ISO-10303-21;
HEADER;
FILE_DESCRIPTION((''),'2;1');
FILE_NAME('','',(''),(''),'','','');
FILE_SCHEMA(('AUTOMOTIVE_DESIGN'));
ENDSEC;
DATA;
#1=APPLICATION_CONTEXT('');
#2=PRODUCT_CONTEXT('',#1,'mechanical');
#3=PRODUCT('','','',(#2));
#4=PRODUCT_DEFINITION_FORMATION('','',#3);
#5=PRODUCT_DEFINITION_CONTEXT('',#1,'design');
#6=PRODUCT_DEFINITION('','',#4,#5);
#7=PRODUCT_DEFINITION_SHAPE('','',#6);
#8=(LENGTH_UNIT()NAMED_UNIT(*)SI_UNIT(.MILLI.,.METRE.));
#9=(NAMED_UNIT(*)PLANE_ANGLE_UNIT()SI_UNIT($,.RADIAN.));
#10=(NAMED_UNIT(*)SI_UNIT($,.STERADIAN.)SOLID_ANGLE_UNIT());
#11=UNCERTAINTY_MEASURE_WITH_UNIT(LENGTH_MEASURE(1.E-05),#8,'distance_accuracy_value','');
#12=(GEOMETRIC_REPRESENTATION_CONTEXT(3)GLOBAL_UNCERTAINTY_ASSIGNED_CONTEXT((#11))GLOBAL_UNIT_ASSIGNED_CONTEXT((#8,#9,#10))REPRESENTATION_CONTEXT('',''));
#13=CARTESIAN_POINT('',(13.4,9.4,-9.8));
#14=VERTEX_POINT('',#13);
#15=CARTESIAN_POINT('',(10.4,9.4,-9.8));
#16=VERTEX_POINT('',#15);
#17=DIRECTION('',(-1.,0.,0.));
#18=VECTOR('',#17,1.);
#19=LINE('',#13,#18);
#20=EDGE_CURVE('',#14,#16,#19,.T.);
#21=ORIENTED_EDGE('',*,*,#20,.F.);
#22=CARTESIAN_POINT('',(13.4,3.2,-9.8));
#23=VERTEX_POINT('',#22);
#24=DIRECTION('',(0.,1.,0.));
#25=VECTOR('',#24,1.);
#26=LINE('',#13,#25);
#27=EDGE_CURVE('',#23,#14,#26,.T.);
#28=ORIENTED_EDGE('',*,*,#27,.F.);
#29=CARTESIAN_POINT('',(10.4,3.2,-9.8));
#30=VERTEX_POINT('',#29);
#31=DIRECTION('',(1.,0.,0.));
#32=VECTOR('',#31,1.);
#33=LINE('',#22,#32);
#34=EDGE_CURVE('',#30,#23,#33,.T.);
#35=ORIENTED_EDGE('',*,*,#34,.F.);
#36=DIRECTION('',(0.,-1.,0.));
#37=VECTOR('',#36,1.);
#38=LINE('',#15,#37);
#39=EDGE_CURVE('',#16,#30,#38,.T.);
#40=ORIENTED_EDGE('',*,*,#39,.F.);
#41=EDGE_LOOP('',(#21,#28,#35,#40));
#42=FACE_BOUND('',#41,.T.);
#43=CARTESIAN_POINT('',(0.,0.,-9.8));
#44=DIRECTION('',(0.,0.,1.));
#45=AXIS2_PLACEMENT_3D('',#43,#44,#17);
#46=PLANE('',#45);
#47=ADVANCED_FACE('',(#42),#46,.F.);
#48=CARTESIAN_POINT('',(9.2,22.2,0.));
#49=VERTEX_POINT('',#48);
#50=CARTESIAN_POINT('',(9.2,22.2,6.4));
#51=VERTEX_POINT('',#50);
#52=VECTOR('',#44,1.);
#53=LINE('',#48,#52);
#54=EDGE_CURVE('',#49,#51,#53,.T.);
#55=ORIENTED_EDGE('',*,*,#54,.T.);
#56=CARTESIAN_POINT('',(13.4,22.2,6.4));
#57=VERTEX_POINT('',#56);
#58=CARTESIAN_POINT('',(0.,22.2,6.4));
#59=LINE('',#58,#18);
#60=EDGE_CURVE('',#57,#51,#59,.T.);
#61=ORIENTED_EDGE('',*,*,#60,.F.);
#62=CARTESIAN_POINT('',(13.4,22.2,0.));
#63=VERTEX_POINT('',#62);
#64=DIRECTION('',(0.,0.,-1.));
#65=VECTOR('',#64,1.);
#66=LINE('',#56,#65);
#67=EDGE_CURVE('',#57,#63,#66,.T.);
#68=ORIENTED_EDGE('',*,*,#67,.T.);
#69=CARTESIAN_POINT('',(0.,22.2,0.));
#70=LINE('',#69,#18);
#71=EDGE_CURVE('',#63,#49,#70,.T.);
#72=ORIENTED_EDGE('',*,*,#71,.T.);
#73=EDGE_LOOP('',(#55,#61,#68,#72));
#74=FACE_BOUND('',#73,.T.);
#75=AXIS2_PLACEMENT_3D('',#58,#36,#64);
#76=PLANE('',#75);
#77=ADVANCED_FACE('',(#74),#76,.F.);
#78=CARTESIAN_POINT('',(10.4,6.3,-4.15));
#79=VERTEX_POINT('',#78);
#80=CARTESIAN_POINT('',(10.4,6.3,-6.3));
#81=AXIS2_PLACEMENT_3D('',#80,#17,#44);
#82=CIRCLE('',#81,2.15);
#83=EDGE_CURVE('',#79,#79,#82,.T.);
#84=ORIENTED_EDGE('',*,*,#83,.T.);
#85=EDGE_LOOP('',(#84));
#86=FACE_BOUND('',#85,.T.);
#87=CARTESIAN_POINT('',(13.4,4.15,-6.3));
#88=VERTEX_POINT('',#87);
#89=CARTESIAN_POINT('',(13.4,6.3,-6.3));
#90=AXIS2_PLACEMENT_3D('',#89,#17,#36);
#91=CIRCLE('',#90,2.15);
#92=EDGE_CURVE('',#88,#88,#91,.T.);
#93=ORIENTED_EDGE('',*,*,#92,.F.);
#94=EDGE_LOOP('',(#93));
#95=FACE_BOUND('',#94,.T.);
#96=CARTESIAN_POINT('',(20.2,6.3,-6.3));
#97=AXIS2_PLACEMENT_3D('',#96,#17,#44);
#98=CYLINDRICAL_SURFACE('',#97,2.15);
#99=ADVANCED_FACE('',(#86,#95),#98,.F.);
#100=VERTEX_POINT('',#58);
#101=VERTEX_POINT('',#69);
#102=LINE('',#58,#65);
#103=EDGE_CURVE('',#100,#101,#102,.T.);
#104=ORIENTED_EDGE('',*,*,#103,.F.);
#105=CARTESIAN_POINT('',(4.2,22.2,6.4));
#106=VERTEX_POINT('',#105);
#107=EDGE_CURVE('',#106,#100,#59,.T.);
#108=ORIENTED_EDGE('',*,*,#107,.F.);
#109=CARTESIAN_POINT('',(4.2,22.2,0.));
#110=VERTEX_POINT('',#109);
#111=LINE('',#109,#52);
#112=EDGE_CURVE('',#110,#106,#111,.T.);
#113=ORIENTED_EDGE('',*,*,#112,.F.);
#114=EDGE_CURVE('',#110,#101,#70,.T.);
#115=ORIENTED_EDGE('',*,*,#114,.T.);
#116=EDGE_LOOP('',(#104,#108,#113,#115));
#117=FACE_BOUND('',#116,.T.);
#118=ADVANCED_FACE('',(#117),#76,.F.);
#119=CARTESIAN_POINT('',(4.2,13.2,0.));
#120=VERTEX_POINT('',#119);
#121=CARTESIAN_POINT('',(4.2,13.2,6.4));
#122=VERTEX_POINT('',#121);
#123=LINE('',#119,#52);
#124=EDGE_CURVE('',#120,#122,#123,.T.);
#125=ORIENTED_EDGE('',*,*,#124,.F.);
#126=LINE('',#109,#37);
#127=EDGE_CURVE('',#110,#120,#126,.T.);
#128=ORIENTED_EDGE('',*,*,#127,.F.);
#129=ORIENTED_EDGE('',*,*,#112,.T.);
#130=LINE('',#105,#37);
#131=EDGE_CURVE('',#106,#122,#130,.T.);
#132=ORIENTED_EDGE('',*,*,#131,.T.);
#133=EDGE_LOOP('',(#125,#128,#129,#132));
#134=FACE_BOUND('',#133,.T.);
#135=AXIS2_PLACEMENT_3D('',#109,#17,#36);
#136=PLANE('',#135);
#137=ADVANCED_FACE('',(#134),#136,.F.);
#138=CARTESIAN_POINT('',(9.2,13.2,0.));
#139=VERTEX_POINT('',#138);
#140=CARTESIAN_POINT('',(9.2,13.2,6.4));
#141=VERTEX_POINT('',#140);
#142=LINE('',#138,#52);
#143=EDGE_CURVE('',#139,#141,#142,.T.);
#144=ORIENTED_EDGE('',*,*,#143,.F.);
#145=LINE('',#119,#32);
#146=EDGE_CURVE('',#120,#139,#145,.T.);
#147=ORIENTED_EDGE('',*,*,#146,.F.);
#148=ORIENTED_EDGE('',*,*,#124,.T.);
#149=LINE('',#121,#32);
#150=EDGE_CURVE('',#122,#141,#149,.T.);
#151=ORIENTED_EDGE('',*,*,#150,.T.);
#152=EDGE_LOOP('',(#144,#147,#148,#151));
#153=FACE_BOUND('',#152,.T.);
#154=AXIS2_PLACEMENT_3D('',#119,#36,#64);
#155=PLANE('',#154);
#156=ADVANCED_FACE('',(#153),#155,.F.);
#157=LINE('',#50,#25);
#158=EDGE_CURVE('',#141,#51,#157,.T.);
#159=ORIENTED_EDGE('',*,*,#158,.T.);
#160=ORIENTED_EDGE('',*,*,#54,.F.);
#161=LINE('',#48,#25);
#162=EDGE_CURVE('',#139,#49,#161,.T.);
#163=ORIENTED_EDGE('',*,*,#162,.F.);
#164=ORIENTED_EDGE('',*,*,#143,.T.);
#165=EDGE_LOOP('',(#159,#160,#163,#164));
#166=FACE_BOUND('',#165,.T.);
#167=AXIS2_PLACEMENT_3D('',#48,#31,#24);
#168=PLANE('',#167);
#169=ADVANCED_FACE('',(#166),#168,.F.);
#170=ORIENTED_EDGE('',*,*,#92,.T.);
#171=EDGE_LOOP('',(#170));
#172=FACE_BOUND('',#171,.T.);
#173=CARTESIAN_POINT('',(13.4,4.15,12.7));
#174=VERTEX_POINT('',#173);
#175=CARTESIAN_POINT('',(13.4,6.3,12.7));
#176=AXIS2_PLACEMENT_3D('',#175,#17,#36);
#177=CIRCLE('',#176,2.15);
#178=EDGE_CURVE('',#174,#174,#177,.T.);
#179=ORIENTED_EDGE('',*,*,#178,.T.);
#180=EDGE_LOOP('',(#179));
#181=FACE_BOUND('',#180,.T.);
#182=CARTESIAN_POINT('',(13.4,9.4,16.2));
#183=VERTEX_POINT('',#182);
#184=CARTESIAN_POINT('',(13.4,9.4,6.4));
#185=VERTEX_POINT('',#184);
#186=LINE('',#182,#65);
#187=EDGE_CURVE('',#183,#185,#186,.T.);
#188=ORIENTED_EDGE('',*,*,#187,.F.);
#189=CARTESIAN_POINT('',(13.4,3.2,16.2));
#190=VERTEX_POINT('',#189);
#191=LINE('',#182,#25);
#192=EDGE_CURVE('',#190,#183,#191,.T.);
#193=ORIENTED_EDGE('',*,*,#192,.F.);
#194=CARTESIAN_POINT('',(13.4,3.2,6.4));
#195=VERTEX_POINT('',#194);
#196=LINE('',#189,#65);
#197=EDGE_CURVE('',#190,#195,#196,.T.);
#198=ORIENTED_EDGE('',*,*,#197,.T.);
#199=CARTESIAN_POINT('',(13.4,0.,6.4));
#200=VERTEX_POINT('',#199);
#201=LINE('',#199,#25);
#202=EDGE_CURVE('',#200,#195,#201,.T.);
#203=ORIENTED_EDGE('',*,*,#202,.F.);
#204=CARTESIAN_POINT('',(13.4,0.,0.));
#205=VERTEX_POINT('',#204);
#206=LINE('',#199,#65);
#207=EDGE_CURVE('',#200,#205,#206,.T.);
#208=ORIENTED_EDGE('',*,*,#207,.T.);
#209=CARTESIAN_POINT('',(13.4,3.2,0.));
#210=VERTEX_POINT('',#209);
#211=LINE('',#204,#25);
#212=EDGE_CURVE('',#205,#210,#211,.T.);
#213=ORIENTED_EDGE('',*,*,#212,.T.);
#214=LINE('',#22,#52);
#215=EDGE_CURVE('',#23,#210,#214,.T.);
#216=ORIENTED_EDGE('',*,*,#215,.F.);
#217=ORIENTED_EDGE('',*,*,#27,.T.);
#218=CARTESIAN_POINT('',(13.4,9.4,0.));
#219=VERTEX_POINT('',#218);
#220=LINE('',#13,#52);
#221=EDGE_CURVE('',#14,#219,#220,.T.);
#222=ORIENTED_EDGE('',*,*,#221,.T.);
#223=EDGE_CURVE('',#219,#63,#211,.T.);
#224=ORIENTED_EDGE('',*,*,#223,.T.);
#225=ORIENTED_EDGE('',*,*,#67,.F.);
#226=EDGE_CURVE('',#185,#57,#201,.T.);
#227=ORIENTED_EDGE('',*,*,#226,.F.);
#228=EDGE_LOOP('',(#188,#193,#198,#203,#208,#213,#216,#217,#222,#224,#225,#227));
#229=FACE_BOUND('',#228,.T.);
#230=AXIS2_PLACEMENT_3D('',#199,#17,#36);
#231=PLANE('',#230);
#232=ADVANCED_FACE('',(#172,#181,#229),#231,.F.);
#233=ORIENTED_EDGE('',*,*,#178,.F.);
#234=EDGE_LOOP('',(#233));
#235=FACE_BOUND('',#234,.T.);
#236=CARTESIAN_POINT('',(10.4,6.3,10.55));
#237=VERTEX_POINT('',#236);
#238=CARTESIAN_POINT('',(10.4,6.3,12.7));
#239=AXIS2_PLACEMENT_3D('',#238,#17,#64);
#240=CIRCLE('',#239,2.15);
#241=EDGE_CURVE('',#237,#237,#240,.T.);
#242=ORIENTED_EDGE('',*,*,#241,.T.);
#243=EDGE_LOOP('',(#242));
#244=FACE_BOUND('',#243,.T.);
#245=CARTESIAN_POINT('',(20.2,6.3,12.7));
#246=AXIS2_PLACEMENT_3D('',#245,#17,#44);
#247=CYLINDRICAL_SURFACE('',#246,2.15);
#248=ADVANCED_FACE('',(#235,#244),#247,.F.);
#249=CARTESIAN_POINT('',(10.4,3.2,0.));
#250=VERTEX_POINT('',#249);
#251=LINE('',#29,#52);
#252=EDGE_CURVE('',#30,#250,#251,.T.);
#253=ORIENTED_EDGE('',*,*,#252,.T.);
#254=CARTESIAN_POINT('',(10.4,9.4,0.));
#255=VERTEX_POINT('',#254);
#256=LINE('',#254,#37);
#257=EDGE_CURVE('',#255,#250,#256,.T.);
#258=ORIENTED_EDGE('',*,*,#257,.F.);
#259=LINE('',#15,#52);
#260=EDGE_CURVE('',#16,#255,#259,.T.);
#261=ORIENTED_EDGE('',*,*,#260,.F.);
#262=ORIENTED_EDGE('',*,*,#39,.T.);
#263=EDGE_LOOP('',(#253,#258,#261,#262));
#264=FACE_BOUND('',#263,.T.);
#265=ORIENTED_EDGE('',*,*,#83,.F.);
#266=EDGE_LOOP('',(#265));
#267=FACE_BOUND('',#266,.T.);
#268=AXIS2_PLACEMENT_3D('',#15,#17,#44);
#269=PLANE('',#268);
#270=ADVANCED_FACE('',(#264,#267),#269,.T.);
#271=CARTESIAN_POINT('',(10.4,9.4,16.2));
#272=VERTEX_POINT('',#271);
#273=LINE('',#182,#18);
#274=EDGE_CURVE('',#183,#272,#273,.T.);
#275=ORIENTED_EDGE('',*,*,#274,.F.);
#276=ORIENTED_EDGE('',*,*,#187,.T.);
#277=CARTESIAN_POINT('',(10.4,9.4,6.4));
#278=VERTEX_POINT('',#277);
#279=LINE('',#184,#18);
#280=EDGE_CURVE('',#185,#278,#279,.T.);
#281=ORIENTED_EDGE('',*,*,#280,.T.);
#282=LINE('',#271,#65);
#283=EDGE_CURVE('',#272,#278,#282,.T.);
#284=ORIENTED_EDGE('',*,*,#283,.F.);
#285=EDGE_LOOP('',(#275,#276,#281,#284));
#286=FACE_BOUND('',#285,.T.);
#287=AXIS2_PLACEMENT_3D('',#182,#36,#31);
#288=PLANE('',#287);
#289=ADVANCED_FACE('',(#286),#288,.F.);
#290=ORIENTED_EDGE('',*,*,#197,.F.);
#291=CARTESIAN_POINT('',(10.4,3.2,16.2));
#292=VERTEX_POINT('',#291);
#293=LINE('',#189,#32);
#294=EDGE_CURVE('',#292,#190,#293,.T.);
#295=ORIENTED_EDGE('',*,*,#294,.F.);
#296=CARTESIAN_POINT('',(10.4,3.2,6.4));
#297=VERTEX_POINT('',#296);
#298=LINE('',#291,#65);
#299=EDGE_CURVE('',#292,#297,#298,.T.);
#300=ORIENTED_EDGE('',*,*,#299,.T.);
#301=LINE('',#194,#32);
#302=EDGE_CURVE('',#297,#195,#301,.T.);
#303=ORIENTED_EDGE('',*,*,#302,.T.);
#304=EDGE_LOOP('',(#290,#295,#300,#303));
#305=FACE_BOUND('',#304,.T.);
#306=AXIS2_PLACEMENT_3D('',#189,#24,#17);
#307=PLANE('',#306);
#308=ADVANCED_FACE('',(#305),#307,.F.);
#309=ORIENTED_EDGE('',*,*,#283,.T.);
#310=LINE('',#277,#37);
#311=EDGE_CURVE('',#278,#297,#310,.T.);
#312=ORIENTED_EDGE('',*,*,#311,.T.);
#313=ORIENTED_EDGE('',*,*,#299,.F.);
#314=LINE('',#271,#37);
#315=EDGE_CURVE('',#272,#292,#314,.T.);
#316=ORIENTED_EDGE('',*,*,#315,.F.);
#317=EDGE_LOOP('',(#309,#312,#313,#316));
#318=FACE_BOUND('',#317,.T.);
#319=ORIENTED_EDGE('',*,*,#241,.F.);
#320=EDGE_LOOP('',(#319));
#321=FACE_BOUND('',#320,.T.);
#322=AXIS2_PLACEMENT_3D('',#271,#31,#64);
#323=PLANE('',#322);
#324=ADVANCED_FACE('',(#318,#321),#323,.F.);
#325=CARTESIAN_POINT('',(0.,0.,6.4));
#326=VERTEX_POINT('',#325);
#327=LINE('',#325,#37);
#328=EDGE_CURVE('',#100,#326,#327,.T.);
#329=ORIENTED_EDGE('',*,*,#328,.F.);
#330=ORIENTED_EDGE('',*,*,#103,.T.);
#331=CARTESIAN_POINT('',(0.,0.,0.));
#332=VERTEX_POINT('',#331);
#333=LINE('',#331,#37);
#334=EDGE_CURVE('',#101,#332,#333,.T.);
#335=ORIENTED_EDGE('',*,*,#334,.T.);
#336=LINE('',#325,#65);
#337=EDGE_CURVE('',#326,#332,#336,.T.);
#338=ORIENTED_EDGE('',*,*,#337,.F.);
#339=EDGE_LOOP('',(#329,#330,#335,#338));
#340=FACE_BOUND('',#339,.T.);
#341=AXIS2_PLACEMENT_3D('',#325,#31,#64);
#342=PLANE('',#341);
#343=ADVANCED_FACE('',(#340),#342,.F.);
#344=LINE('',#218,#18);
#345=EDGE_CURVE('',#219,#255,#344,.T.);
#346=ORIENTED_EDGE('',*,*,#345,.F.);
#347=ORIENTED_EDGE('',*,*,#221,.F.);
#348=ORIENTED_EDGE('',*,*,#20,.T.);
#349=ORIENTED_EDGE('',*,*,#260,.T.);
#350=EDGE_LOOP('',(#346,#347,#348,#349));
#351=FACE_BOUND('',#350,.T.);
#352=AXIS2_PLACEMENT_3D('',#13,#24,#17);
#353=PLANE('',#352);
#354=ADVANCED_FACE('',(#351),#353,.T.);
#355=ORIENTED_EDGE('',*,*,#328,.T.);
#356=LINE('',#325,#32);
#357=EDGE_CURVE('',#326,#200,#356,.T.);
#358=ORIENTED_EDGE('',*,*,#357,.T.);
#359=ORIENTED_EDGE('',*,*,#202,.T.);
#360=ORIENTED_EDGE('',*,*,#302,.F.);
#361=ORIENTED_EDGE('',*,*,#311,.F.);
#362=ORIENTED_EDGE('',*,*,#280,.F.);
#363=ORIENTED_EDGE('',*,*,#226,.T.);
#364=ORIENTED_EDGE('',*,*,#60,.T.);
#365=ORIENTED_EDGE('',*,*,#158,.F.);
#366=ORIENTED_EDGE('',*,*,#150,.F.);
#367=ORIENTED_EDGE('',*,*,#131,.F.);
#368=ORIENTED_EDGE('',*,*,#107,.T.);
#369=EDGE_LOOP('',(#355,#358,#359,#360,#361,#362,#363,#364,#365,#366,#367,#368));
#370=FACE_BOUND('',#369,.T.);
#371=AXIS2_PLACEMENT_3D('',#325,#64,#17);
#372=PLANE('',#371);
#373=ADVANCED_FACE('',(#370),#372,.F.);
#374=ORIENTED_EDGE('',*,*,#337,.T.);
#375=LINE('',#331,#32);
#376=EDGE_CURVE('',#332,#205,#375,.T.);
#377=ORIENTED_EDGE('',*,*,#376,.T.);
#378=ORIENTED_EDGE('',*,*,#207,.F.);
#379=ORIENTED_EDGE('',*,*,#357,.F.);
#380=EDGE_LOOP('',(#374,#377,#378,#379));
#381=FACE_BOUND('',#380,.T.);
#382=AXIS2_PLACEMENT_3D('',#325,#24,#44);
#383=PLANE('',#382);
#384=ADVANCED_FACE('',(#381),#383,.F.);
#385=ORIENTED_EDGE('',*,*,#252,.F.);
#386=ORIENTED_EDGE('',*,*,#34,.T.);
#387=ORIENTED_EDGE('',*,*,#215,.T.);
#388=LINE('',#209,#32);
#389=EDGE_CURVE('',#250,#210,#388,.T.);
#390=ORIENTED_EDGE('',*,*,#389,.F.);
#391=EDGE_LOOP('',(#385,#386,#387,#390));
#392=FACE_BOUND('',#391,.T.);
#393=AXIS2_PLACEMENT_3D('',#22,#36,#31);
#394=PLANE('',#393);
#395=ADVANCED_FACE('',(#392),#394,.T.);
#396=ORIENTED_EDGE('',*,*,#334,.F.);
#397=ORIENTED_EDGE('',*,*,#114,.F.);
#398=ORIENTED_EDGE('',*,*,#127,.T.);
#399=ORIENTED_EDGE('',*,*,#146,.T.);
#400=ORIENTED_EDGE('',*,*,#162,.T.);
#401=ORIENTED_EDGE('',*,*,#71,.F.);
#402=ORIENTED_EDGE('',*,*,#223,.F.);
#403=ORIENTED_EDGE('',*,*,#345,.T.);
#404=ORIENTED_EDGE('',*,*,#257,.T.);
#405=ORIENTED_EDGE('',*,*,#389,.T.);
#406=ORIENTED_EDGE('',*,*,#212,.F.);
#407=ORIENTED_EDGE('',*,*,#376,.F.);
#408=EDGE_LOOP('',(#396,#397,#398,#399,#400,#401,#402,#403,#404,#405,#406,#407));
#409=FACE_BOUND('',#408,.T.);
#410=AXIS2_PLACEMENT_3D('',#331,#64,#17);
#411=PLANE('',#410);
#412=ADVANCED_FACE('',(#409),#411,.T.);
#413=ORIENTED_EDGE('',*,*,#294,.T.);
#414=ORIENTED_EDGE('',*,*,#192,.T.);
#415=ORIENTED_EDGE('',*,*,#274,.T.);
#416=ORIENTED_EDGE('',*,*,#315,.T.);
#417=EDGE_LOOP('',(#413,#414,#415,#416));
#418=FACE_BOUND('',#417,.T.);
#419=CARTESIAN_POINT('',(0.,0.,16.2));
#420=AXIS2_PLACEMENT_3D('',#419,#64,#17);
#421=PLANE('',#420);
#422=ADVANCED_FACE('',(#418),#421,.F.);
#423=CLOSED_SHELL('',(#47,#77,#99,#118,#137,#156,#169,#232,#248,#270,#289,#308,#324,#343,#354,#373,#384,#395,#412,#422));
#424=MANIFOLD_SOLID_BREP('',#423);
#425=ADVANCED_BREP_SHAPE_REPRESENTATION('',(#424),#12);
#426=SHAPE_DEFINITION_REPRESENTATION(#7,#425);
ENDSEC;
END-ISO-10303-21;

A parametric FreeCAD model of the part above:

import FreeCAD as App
import Part
import Sketcher

doc = App.newDocument("Part")
body = doc.addObject("PartDesign::Body", "Body")

sketch1 = doc.addObject("Sketcher::SketchObject", "Sketch")
body.addObject(sketch1)
sketch1.AttachmentSupport = (doc.XY_Plane, [""])
sketch1.MapMode = "FlatFace"
sketch1.addGeometry(Part.LineSegment(App.Vector(0, 22.2, 0), App.Vector(0, 0, 0)), False)
sketch1.addGeometry(Part.LineSegment(App.Vector(0, 0, 0), App.Vector(13.4, 0, 0)), False)
sketch1.addGeometry(Part.LineSegment(App.Vector(13.4, 0, 0), App.Vector(13.4, 22.2, 0)), False)
sketch1.addGeometry(Part.LineSegment(App.Vector(13.4, 22.2, 0), App.Vector(0, 22.2, 0)), False)
sketch1.addConstraint(Sketcher.Constraint("Coincident", 0, 2, 1, 1))
sketch1.addConstraint(Sketcher.Constraint("Coincident", 1, 2, 2, 1))
sketch1.addConstraint(Sketcher.Constraint("Coincident", 2, 2, 3, 1))
sketch1.addConstraint(Sketcher.Constraint("Coincident", 3, 2, 0, 1))
sketch1.addConstraint(Sketcher.Constraint("Vertical", 0))
sketch1.addConstraint(Sketcher.Constraint("Horizontal", 1))
sketch1.addConstraint(Sketcher.Constraint("Vertical", 2))
sketch1.addConstraint(Sketcher.Constraint("Horizontal", 3))
sketch1.addConstraint(Sketcher.Constraint("Coincident", 0, 2, -1, 1))
sketch1.addConstraint(Sketcher.Constraint("DistanceX", 1, 1, 1, 2, 13.4))
sketch1.addConstraint(Sketcher.Constraint("DistanceY", 0, 2, 0, 1, 22.2))
pad1 = doc.addObject("PartDesign::Pad", "Pad")
body.addObject(pad1)
pad1.Profile = sketch1
pad1.Length = 6.4

sketch2 = doc.addObject("Sketcher::SketchObject", "Sketch001")
body.addObject(sketch2)
sketch2.AttachmentSupport = (doc.XY_Plane, [""])
sketch2.MapMode = "FlatFace"
sketch2.AttachmentOffset = App.Placement(App.Vector(0, 0, 6.4), App.Rotation())
sketch2.addGeometry(Part.LineSegment(App.Vector(4.2, 22.2, 0), App.Vector(4.2, 13.2, 0)), False)
sketch2.addGeometry(Part.LineSegment(App.Vector(4.2, 13.2, 0), App.Vector(9.2, 13.2, 0)), False)
sketch2.addGeometry(Part.LineSegment(App.Vector(9.2, 13.2, 0), App.Vector(9.2, 22.2, 0)), False)
sketch2.addGeometry(Part.LineSegment(App.Vector(9.2, 22.2, 0), App.Vector(4.2, 22.2, 0)), False)
sketch2.addConstraint(Sketcher.Constraint("Coincident", 0, 2, 1, 1))
sketch2.addConstraint(Sketcher.Constraint("Coincident", 1, 2, 2, 1))
sketch2.addConstraint(Sketcher.Constraint("Coincident", 2, 2, 3, 1))
sketch2.addConstraint(Sketcher.Constraint("Coincident", 3, 2, 0, 1))
sketch2.addConstraint(Sketcher.Constraint("Vertical", 0))
sketch2.addConstraint(Sketcher.Constraint("Horizontal", 1))
sketch2.addConstraint(Sketcher.Constraint("Vertical", 2))
sketch2.addConstraint(Sketcher.Constraint("Horizontal", 3))
sketch2.addConstraint(Sketcher.Constraint("DistanceX", 1, 1, 1, 2, 5.0))
sketch2.addConstraint(Sketcher.Constraint("DistanceY", 0, 2, 0, 1, 9.0))
sketch2.addConstraint(Sketcher.Constraint("DistanceX", -1, 1, 0, 2, 4.2))
sketch2.addConstraint(Sketcher.Constraint("DistanceY", -1, 1, 0, 2, 13.2))
pocket1 = doc.addObject("PartDesign::Pocket", "Pocket")
body.addObject(pocket1)
pocket1.Profile = sketch2
pocket1.Length = 6.4

sketch3 = doc.addObject("Sketcher::SketchObject", "Sketch002")
body.addObject(sketch3)
sketch3.AttachmentSupport = (doc.XY_Plane, [""])
sketch3.MapMode = "FlatFace"
sketch3.AttachmentOffset = App.Placement(App.Vector(0, 0, 6.4), App.Rotation())
sketch3.addGeometry(Part.LineSegment(App.Vector(10.4, 9.4, 0), App.Vector(10.4, 3.2, 0)), False)
sketch3.addGeometry(Part.LineSegment(App.Vector(10.4, 3.2, 0), App.Vector(13.4, 3.2, 0)), False)
sketch3.addGeometry(Part.LineSegment(App.Vector(13.4, 3.2, 0), App.Vector(13.4, 9.4, 0)), False)
sketch3.addGeometry(Part.LineSegment(App.Vector(13.4, 9.4, 0), App.Vector(10.4, 9.4, 0)), False)
sketch3.addConstraint(Sketcher.Constraint("Coincident", 0, 2, 1, 1))
sketch3.addConstraint(Sketcher.Constraint("Coincident", 1, 2, 2, 1))
sketch3.addConstraint(Sketcher.Constraint("Coincident", 2, 2, 3, 1))
sketch3.addConstraint(Sketcher.Constraint("Coincident", 3, 2, 0, 1))
sketch3.addConstraint(Sketcher.Constraint("Vertical", 0))
sketch3.addConstraint(Sketcher.Constraint("Horizontal", 1))
sketch3.addConstraint(Sketcher.Constraint("Vertical", 2))
sketch3.addConstraint(Sketcher.Constraint("Horizontal", 3))
sketch3.addConstraint(Sketcher.Constraint("DistanceX", 1, 1, 1, 2, 3.0))
sketch3.addConstraint(Sketcher.Constraint("DistanceY", 0, 2, 0, 1, 6.2))
sketch3.addConstraint(Sketcher.Constraint("DistanceX", -1, 1, 0, 2, 10.4))
sketch3.addConstraint(Sketcher.Constraint("DistanceY", -1, 1, 0, 2, 3.2))
pad2 = doc.addObject("PartDesign::Pad", "Pad001")
body.addObject(pad2)
pad2.Profile = sketch3
pad2.Length = 9.8
doc.recompute()

datumplane = doc.addObject("PartDesign::Plane", "DatumPlane")
body.addObject(datumplane)
datumplane.AttachmentSupport = (doc.XY_Plane, [""])
datumplane.MapMode = "FlatFace"
datumplane.AttachmentOffset = App.Placement(App.Vector(0, 0, 3.2), App.Rotation())
mirrored = doc.addObject("PartDesign::Mirrored", "Mirrored")
body.addObject(mirrored)
mirrored.Originals = [pad2]
mirrored.MirrorPlane = (datumplane, [""])
body.Tip = mirrored

sketch4 = doc.addObject("Sketcher::SketchObject", "Sketch003")
body.addObject(sketch4)
sketch4.AttachmentSupport = (doc.YZ_Plane, [""])
sketch4.MapMode = "FlatFace"
sketch4.AttachmentOffset = App.Placement(App.Vector(0, 0, 10.4), App.Rotation())
sketch4.addGeometry(Part.Circle(App.Vector(6.3, -6.3, 0), App.Vector(0, 0, 1), 2.15), False)
sketch4.addGeometry(Part.Circle(App.Vector(6.3, 12.7, 0), App.Vector(0, 0, 1), 2.15), False)
sketch4.addConstraint(Sketcher.Constraint("Equal", 0, 1))
sketch4.addConstraint(Sketcher.Constraint("Vertical", 0, 3, 1, 3))
sketch4.addConstraint(Sketcher.Constraint("Diameter", 0, 4.3))
sketch4.addConstraint(Sketcher.Constraint("DistanceY", 0, 3, 1, 3, 19.0))
sketch4.addConstraint(Sketcher.Constraint("DistanceX", -1, 1, 0, 3, 6.3))
sketch4.addConstraint(Sketcher.Constraint("DistanceY", 0, 3, -1, 1, 6.3))
pocket2 = doc.addObject("PartDesign::Pocket", "Pocket001")
body.addObject(pocket2)
pocket2.Profile = sketch4
pocket2.Length = 9.8
pocket2.Reversed = True

doc.recompute()
